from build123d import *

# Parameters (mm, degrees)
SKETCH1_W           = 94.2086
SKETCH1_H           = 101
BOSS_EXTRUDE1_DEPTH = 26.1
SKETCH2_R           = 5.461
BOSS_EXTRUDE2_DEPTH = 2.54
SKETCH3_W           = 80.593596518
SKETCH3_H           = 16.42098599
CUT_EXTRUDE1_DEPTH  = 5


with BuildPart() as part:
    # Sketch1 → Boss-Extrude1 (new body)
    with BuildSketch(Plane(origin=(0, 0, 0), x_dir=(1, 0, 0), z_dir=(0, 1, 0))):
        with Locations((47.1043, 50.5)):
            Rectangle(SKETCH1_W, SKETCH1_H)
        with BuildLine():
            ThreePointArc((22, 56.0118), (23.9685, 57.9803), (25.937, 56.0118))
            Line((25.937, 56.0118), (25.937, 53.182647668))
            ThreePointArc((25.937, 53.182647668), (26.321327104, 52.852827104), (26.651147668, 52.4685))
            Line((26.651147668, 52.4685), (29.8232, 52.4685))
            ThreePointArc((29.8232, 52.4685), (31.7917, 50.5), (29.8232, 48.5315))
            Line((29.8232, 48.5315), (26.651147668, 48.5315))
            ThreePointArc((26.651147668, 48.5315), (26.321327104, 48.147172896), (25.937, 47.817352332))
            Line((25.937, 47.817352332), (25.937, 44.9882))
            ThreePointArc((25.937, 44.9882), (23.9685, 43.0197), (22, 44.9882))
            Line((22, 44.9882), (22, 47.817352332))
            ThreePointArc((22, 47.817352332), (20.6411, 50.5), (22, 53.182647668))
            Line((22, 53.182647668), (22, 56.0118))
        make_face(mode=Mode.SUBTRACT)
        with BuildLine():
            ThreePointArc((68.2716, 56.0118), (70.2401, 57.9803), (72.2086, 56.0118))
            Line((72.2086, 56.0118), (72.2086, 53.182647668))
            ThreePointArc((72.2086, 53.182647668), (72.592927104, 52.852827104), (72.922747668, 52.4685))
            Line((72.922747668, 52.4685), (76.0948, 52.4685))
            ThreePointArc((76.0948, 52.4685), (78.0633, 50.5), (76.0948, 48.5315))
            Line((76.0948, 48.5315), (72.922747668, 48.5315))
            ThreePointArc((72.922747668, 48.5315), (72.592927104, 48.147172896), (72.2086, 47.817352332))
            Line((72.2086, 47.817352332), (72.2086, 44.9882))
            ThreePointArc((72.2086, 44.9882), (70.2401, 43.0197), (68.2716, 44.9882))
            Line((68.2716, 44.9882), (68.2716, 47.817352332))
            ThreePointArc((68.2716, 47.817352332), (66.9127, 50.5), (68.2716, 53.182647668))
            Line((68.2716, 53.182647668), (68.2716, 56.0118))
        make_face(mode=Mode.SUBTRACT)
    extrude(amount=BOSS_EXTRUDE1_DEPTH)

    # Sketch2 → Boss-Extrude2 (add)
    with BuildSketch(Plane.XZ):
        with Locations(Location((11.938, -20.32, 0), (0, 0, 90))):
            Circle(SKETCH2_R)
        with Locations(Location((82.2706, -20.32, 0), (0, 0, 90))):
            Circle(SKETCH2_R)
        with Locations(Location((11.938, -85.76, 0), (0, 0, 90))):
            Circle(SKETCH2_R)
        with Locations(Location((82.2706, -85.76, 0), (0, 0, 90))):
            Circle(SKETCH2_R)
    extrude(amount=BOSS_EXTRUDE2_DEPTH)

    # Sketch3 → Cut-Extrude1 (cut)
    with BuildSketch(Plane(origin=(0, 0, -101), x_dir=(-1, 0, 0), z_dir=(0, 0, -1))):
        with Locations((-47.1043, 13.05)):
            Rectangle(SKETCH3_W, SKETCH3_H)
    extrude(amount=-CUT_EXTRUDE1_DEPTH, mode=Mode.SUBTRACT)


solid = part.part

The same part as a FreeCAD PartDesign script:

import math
import FreeCAD as App
import Part
import Sketcher
Q = App.Units.Quantity


def add_polygon(sketch, points):
    """Adds a closed chain of lines whose ends are joined by coincident constraints."""
    first, n = sketch.GeometryCount, len(points)
    for a, b in zip(points, points[1:] + points[:1]):
        sketch.addGeometry(Part.LineSegment(App.Vector(*a, 0), App.Vector(*b, 0)), False)
    for i in range(n):
        sketch.addConstraint(Sketcher.Constraint("Coincident", first + i, 2, first + (i + 1) % n, 1))

doc = App.newDocument("Part")
body = doc.addObject("PartDesign::Body", "Body")

# Sketch on XZ plane
sketch1 = body.newObject("Sketcher::SketchObject", "Sketch")
sketch1.AttachmentSupport = (doc.getObject("XZ_Plane"), [""])
sketch1.MapMode = "FlatFace"
add_polygon(sketch1, [(0, -101), (0, 0), (94.2, 0), (94.2, -101)])  # lines 0-3
sketch1.addGeometry(Part.LineSegment(App.Vector(22, -53.2, 0), App.Vector(22, -56, 0)), False)  # 4
sketch1.addGeometry(Part.ArcOfCircle(Part.Circle(App.Vector(24, -56, 0), App.Vector(0, 0, 1), 2), math.radians(180), math.radians(360)), False)  # 5
sketch1.addGeometry(Part.LineSegment(App.Vector(25.9, -56, 0), App.Vector(25.9, -53.2, 0)), False)  # 6
sketch1.addGeometry(Part.ArcOfCircle(Part.Circle(App.Vector(24, -50.5, 0), App.Vector(0, 0, 1), 3.3), math.radians(-53.73), math.radians(-36.27)), False)  # 7
sketch1.addGeometry(Part.LineSegment(App.Vector(26.7, -52.5, 0), App.Vector(29.8, -52.5, 0)), False)  # 8
sketch1.addGeometry(Part.ArcOfCircle(Part.Circle(App.Vector(29.8, -50.5, 0), App.Vector(0, 0, 1), 2), math.radians(-90), math.radians(90)), False)  # 9
sketch1.addGeometry(Part.LineSegment(App.Vector(29.8, -48.5, 0), App.Vector(26.7, -48.5, 0)), False)  # 10
sketch1.addGeometry(Part.ArcOfCircle(Part.Circle(App.Vector(24, -50.5, 0), App.Vector(0, 0, 1), 3.3), math.radians(36.27), math.radians(53.73)), False)  # 11
sketch1.addGeometry(Part.LineSegment(App.Vector(25.9, -47.8, 0), App.Vector(25.9, -45, 0)), False)  # 12
sketch1.addGeometry(Part.ArcOfCircle(Part.Circle(App.Vector(24, -45, 0), App.Vector(0, 0, 1), 2), math.radians(0), math.radians(180)), False)  # 13
sketch1.addGeometry(Part.LineSegment(App.Vector(22, -45, 0), App.Vector(22, -47.8, 0)), False)  # 14
sketch1.addGeometry(Part.ArcOfCircle(Part.Circle(App.Vector(24, -50.5, 0), App.Vector(0, 0, 1), 3.3), math.radians(126), math.radians(234)), False)  # 15
sketch1.addGeometry(Part.LineSegment(App.Vector(68.3, -53.2, 0), App.Vector(68.3, -56, 0)), False)  # 16
sketch1.addGeometry(Part.ArcOfCircle(Part.Circle(App.Vector(70.2, -56, 0), App.Vector(0, 0, 1), 2), math.radians(180), math.radians(360)), False)  # 17
sketch1.addGeometry(Part.LineSegment(App.Vector(72.2, -56, 0), App.Vector(72.2, -53.2, 0)), False)  # 18
sketch1.addGeometry(Part.ArcOfCircle(Part.Circle(App.Vector(70.2, -50.5, 0), App.Vector(0, 0, 1), 3.3), math.radians(-53.73), math.radians(-36.27)), False)  # 19
sketch1.addGeometry(Part.LineSegment(App.Vector(72.9, -52.5, 0), App.Vector(76.1, -52.5, 0)), False)  # 20
sketch1.addGeometry(Part.ArcOfCircle(Part.Circle(App.Vector(76.1, -50.5, 0), App.Vector(0, 0, 1), 2), math.radians(-90), math.radians(90)), False)  # 21
sketch1.addGeometry(Part.LineSegment(App.Vector(76.1, -48.5, 0), App.Vector(72.9, -48.5, 0)), False)  # 22
sketch1.addGeometry(Part.ArcOfCircle(Part.Circle(App.Vector(70.2, -50.5, 0), App.Vector(0, 0, 1), 3.3), math.radians(36.27), math.radians(53.73)), False)  # 23
sketch1.addGeometry(Part.LineSegment(App.Vector(72.2, -47.8, 0), App.Vector(72.2, -45, 0)), False)  # 24
sketch1.addGeometry(Part.ArcOfCircle(Part.Circle(App.Vector(70.2, -45, 0), App.Vector(0, 0, 1), 2), math.radians(0), math.radians(180)), False)  # 25
sketch1.addGeometry(Part.LineSegment(App.Vector(68.3, -45, 0), App.Vector(68.3, -47.8, 0)), False)  # 26
sketch1.addGeometry(Part.ArcOfCircle(Part.Circle(App.Vector(70.2, -50.5, 0), App.Vector(0, 0, 1), 3.3), math.radians(126), math.radians(234)), False)  # 27
sketch1.addConstraint(Sketcher.Constraint("Tangent", 4, 2, 5, 1))
sketch1.addConstraint(Sketcher.Constraint("Tangent", 5, 2, 6, 1))
sketch1.addConstraint(Sketcher.Constraint("Coincident", 6, 2, 7, 1))
sketch1.addConstraint(Sketcher.Constraint("Coincident", 7, 2, 8, 1))
sketch1.addConstraint(Sketcher.Constraint("Tangent", 8, 2, 9, 1))
sketch1.addConstraint(Sketcher.Constraint("Tangent", 9, 2, 10, 1))
sketch1.addConstraint(Sketcher.Constraint("Coincident", 10, 2, 11, 1))
sketch1.addConstraint(Sketcher.Constraint("Coincident", 11, 2, 12, 1))
sketch1.addConstraint(Sketcher.Constraint("Tangent", 12, 2, 13, 1))
sketch1.addConstraint(Sketcher.Constraint("Tangent", 13, 2, 14, 1))
sketch1.addConstraint(Sketcher.Constraint("Coincident", 14, 2, 15, 1))
sketch1.addConstraint(Sketcher.Constraint("Coincident", 15, 2, 4, 1))
sketch1.addConstraint(Sketcher.Constraint("Tangent", 16, 2, 17, 1))
sketch1.addConstraint(Sketcher.Constraint("Tangent", 17, 2, 18, 1))
sketch1.addConstraint(Sketcher.Constraint("Coincident", 18, 2, 19, 1))
sketch1.addConstraint(Sketcher.Constraint("Coincident", 19, 2, 20, 1))
sketch1.addConstraint(Sketcher.Constraint("Tangent", 20, 2, 21, 1))
sketch1.addConstraint(Sketcher.Constraint("Tangent", 21, 2, 22, 1))
sketch1.addConstraint(Sketcher.Constraint("Coincident", 22, 2, 23, 1))
sketch1.addConstraint(Sketcher.Constraint("Coincident", 23, 2, 24, 1))
sketch1.addConstraint(Sketcher.Constraint("Tangent", 24, 2, 25, 1))
sketch1.addConstraint(Sketcher.Constraint("Tangent", 25, 2, 26, 1))
sketch1.addConstraint(Sketcher.Constraint("Coincident", 26, 2, 27, 1))
sketch1.addConstraint(Sketcher.Constraint("Coincident", 27, 2, 16, 1))
sketch1.addConstraint(Sketcher.Constraint("Vertical", 0))
sketch1.addConstraint(Sketcher.Constraint("Horizontal", 1))
sketch1.addConstraint(Sketcher.Constraint("Vertical", 2))
sketch1.addConstraint(Sketcher.Constraint("Horizontal", 3))
sketch1.addConstraint(Sketcher.Constraint("Vertical", 4))
sketch1.addConstraint(Sketcher.Constraint("Vertical", 6))
sketch1.addConstraint(Sketcher.Constraint("Horizontal", 8))
sketch1.addConstraint(Sketcher.Constraint("Horizontal", 10))
sketch1.addConstraint(Sketcher.Constraint("Vertical", 12))
sketch1.addConstraint(Sketcher.Constraint("Vertical", 14))
sketch1.addConstraint(Sketcher.Constraint("Vertical", 16))
sketch1.addConstraint(Sketcher.Constraint("Vertical", 18))
sketch1.addConstraint(Sketcher.Constraint("Horizontal", 20))
sketch1.addConstraint(Sketcher.Constraint("Horizontal", 22))
sketch1.addConstraint(Sketcher.Constraint("Vertical", 24))
sketch1.addConstraint(Sketcher.Constraint("Vertical", 26))
sketch1.addConstraint(Sketcher.Constraint("Coincident", 0, 2, -1, 1))
sketch1.addConstraint(Sketcher.Constraint("Coincident", 11, 3, 7, 3))
sketch1.addConstraint(Sketcher.Constraint("Coincident", 15, 3, 7, 3))
sketch1.addConstraint(Sketcher.Constraint("Coincident", 23, 3, 19, 3))
sketch1.addConstraint(Sketcher.Constraint("Coincident", 27, 3, 19, 3))
sketch1.addConstraint(Sketcher.Constraint("Equal", 5, 9))
sketch1.addConstraint(Sketcher.Constraint("Equal", 7, 11))
sketch1.addConstraint(Sketcher.Constraint("Equal", 9, 13))
sketch1.addConstraint(Sketcher.Constraint("Equal", 11, 15))
sketch1.addConstraint(Sketcher.Constraint("Equal", 13, 17))
sketch1.addConstraint(Sketcher.Constraint("Equal", 15, 19))
sketch1.addConstraint(Sketcher.Constraint("Equal", 17, 21))
sketch1.addConstraint(Sketcher.Constraint("Equal", 19, 23))
sketch1.addConstraint(Sketcher.Constraint("Equal", 21, 25))
sketch1.addConstraint(Sketcher.Constraint("Equal", 23, 27))
sketch1.addConstraint(Sketcher.Constraint("Horizontal", 7, 3, 9, 3))
sketch1.addConstraint(Sketcher.Constraint("Horizontal", 5, 3, 17, 3))
sketch1.addConstraint(Sketcher.Constraint("Horizontal", 15, 3, 19, 3))
sketch1.addConstraint(Sketcher.Constraint("Horizontal", 19, 3, 21, 3))
sketch1.addConstraint(Sketcher.Constraint("Horizontal", 13, 3, 25, 3))
sketch1.addConstraint(Sketcher.Constraint("Horizontal", 11, 2, 14, 2))
sketch1.addConstraint(Sketcher.Constraint("Horizontal", 6, 2, 15, 2))
sketch1.addConstraint(Sketcher.Constraint("Horizontal", 15, 2, 18, 2))
sketch1.addConstraint(Sketcher.Constraint("Horizontal", 14, 2, 23, 2))
sketch1.addConstraint(Sketcher.Constraint("Equal", 10, 20))
sketch1.addConstraint(Sketcher.Constraint("Equal", 6, 12))
sketch1.addConstraint(Sketcher.Constraint("Radius", 7, Q("0.131 in")))
sketch1.addConstraint(Sketcher.Constraint("Radius", 5, Q("0.0775 in")))
sketch1.addConstraint(Sketcher.Constraint("DistanceX", 1, 1, 1, 2, Q("3.709 in")))
sketch1.addConstraint(Sketcher.Constraint("DistanceY", 5, 3, 7, 3, Q("0.217 in")))
sketch1.addConstraint(Sketcher.Constraint("DistanceX", 4, 2, 9, 3, Q("0.308 in")))
sketch1.addConstraint(Sketcher.Constraint("DistanceY", 0, 1, 0, 2, Q("101 mm")))
sketch1.addConstraint(Sketcher.Constraint("DistanceX", -1, 1, 5, 3, Q("23.9685 mm")))
sketch1.addConstraint(Sketcher.Constraint("DistanceY", 5, 3, -1, 1, Q("56.0118 mm")))
sketch1.addConstraint(Sketcher.Constraint("DistanceX", -1, 1, 17, 3, Q("70.2401 mm")))
pad1 = body.newObject("PartDesign::Pad", "Pad")
pad1.Profile = sketch1
pad1.Length = 26.1
pad1.Reversed = True

# Sketch on XZ plane
sketch2 = body.newObject("Sketcher::SketchObject", "Sketch001")
sketch2.AttachmentSupport = (doc.getObject("XZ_Plane"), [""])
sketch2.MapMode = "FlatFace"
sketch2.addGeometry(Part.Circle(App.Vector(12, -20, 0), App.Vector(0, 0, 1), 5), False)
sketch2.addGeometry(Part.Circle(App.Vector(82, -20, 0), App.Vector(0, 0, 1), 5), False)
sketch2.addGeometry(Part.Circle(App.Vector(12, -86, 0), App.Vector(0, 0, 1), 5), False)
sketch2.addGeometry(Part.Circle(App.Vector(82, -86, 0), App.Vector(0, 0, 1), 5), False)
sketch2.addConstraint(Sketcher.Constraint("Equal", 0, 1))
sketch2.addConstraint(Sketcher.Constraint("Equal", 1, 2))
sketch2.addConstraint(Sketcher.Constraint("Equal", 2, 3))
sketch2.addConstraint(Sketcher.Constraint("Horizontal", 0, 3, 1, 3))
sketch2.addConstraint(Sketcher.Constraint("Horizontal", 2, 3, 3, 3))
sketch2.addConstraint(Sketcher.Constraint("Vertical", 0, 3, 2, 3))
sketch2.addConstraint(Sketcher.Constraint("Vertical", 1, 3, 3, 3))
sketch2.addConstraint(Sketcher.Constraint("Diameter", 0, Q("0.43 in")))
sketch2.addConstraint(Sketcher.Constraint("DistanceY", 0, 3, -1, 1, Q("0.8 in")))
sketch2.addConstraint(Sketcher.Constraint("DistanceX", -1, 1, 0, 3, Q("0.47 in")))
sketch2.addConstraint(Sketcher.Constraint("DistanceX", -1, 1, 1, 3, Q("3.239 in")))
sketch2.addConstraint(Sketcher.Constraint("DistanceY", 2, 3, -1, 1, Q("85.76 mm")))
pad2 = body.newObject("PartDesign::Pad", "Pad001")
pad2.Profile = sketch2
pad2.Length = Q("0.1 in")

# Sketch on XY plane
sketch3 = body.newObject("Sketcher::SketchObject", "Sketch002")
sketch3.AttachmentSupport = (doc.getObject("XY_Plane"), [""])
sketch3.MapMode = "FlatFace"
sketch3.AttachmentOffset = App.Placement(App.Vector(0, 0, -101), App.Rotation())
add_polygon(sketch3, [(87, 21), (87, 5), (7, 5), (7, 21)])  # lines 0-3
sketch3.addConstraint(Sketcher.Constraint("Vertical", 0))
sketch3.addConstraint(Sketcher.Constraint("Horizontal", 1))
sketch3.addConstraint(Sketcher.Constraint("Vertical", 2))
sketch3.addConstraint(Sketcher.Constraint("Horizontal", 3))
sketch3.addConstraint(Sketcher.Constraint("DistanceX", -1, 1, 0, 2, Q("87.401098 mm")))
sketch3.addConstraint(Sketcher.Constraint("DistanceX", -1, 1, 1, 2, Q("6.807502 mm")))
sketch3.addConstraint(Sketcher.Constraint("DistanceY", 0, 2, 0, 1, Q("16.420986 mm")))
sketch3.addConstraint(Sketcher.Constraint("DistanceY", -1, 1, 0, 2, Q("4.839507 mm")))
pocket1 = body.newObject("PartDesign::Pocket", "Pocket")
pocket1.Profile = sketch3
pocket1.Length = 5
pocket1.Reversed = True

doc.recompute()
